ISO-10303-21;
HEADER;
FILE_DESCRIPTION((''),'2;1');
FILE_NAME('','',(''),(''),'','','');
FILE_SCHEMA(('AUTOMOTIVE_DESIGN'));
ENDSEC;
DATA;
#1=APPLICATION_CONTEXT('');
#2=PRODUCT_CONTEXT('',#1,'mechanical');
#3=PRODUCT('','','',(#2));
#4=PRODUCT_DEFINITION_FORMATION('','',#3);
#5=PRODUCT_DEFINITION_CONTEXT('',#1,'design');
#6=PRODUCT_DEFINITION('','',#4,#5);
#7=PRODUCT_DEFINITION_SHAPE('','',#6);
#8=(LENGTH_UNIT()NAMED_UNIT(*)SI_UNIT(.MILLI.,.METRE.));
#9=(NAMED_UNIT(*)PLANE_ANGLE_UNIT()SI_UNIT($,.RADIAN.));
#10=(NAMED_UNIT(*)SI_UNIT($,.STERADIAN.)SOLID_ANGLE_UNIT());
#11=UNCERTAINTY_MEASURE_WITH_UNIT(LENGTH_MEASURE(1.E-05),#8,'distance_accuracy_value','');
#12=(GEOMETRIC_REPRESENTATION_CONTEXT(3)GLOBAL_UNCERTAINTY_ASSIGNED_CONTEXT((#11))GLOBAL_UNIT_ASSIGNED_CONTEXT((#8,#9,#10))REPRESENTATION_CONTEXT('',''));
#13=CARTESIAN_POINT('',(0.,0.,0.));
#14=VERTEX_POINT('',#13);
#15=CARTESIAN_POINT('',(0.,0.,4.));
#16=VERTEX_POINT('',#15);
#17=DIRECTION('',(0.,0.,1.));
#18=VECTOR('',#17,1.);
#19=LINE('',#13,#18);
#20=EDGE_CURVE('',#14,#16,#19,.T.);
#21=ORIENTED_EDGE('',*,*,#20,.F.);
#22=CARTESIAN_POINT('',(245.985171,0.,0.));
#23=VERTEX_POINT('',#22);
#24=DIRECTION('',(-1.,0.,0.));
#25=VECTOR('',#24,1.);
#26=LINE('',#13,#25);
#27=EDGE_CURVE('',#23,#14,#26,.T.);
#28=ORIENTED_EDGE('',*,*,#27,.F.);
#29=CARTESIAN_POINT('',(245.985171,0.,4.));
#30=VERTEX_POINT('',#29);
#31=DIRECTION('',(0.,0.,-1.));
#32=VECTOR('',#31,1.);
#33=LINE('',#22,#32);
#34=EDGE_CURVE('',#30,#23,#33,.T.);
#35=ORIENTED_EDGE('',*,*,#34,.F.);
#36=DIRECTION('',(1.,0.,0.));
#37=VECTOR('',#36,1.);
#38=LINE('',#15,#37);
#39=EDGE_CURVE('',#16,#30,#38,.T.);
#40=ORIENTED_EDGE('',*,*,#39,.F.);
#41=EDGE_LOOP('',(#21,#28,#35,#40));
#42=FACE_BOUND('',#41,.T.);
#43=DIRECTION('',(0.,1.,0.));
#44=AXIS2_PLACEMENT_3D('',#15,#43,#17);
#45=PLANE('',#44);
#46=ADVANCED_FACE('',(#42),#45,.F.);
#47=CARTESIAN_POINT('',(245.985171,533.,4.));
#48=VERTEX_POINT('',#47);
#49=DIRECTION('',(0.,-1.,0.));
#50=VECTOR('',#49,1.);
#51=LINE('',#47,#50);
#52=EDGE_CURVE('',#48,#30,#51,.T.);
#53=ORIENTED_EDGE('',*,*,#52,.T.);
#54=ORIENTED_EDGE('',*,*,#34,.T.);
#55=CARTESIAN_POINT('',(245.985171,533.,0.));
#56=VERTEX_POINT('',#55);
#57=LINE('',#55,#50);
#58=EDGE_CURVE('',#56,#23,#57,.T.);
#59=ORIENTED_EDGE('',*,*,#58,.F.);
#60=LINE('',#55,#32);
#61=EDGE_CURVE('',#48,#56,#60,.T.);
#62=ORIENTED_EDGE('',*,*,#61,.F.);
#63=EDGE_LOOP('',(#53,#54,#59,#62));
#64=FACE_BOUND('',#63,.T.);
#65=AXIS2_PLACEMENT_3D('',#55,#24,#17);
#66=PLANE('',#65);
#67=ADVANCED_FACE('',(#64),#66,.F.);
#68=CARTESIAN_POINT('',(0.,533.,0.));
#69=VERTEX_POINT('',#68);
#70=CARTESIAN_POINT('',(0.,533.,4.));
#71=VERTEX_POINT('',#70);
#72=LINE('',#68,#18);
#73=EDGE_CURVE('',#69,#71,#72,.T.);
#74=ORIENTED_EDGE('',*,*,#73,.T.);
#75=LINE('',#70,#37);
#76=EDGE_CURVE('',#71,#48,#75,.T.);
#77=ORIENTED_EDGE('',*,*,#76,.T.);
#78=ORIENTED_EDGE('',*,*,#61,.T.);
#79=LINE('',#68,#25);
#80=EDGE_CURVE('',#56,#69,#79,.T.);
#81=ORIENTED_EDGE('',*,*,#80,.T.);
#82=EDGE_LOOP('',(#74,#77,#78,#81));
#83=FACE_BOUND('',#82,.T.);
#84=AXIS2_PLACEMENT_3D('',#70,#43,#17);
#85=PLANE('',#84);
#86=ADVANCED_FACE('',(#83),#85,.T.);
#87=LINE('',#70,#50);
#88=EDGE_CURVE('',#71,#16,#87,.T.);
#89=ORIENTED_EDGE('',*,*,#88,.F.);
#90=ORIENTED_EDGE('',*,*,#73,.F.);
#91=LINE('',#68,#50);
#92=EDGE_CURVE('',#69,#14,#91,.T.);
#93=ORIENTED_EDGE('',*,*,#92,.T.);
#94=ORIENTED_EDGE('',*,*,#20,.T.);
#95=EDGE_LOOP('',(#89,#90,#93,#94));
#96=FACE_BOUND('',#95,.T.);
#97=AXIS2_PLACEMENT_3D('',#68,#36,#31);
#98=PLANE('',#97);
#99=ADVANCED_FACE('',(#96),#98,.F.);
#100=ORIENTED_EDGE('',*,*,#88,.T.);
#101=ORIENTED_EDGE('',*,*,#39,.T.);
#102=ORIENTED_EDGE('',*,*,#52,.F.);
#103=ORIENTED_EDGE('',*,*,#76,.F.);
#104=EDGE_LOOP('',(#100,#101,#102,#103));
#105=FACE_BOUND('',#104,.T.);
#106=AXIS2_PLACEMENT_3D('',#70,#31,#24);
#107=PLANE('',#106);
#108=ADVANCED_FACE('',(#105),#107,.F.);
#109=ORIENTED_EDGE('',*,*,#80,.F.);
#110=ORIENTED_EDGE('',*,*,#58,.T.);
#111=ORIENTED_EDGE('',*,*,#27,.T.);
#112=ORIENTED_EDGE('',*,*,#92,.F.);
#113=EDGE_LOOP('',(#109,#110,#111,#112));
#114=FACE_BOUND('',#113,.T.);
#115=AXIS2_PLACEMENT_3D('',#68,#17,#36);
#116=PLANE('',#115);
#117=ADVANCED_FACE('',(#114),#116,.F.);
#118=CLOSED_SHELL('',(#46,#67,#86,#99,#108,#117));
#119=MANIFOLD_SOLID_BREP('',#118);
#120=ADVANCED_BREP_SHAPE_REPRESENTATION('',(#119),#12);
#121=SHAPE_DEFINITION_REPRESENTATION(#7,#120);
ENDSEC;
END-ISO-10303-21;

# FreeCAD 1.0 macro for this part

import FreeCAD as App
import Part
import Sketcher
from FreeCAD import Vector
Q = App.Units.Quantity


def add_polygon(sketch, points):
    """Adds a closed chain of lines whose ends are joined by coincident constraints."""
    first, n = sketch.GeometryCount, len(points)
    for a, b in zip(points, points[1:] + points[:1]):
        sketch.addGeometry(Part.LineSegment(App.Vector(*a, 0), App.Vector(*b, 0)), False)
    for i in range(n):
        sketch.addConstraint(Sketcher.Constraint("Coincident", first + i, 2, first + (i + 1) % n, 1))

doc = App.newDocument("Part")
params = doc.addObject("Spreadsheet::Sheet", "Params")
for row, (alias, value) in enumerate([
    ("sketch1_height", "4 mm"),
    ("pad1_length", "533 mm"),
], start=1):
    params.set(f"A{row}", alias)
    params.set(f"B{row}", "=" + value)
    params.setAlias(f"B{row}", alias)

body = doc.addObject("PartDesign::Body", "Body")

sketch1 = body.newObject("Sketcher::SketchObject", "Sketch")
sketch1.AttachmentSupport = (doc.getObject("XZ_Plane"), [""])
sketch1.MapMode = "FlatFace"
add_polygon(sketch1, [(0, 0), (0, 4), (245.985171, 4), (245.985171, 0)])
sketch1.addConstraint([
    Sketcher.Constraint("Vertical", 0),
    Sketcher.Constraint("Horizontal", 1),
    Sketcher.Constraint("Vertical", 2),
    Sketcher.Constraint("Horizontal", 3),
    Sketcher.Constraint("Coincident", 3, 2, -1, 1),
    Sketcher.Constraint("DistanceY", 0, 1, 0, 2, Q("4 mm")),
    Sketcher.Constraint("DistanceX", 1, 1, 1, 2, Q("245.985171 mm")),
])
sketch1.setExpression("Constraints[9]", "Params.sketch1_height")
pad1 = body.newObject("PartDesign::Pad", "Pad")
pad1.Profile = sketch1
pad1.setExpression("Length", "Params.pad1_length")
pad1.Reversed = True

doc.recompute()
